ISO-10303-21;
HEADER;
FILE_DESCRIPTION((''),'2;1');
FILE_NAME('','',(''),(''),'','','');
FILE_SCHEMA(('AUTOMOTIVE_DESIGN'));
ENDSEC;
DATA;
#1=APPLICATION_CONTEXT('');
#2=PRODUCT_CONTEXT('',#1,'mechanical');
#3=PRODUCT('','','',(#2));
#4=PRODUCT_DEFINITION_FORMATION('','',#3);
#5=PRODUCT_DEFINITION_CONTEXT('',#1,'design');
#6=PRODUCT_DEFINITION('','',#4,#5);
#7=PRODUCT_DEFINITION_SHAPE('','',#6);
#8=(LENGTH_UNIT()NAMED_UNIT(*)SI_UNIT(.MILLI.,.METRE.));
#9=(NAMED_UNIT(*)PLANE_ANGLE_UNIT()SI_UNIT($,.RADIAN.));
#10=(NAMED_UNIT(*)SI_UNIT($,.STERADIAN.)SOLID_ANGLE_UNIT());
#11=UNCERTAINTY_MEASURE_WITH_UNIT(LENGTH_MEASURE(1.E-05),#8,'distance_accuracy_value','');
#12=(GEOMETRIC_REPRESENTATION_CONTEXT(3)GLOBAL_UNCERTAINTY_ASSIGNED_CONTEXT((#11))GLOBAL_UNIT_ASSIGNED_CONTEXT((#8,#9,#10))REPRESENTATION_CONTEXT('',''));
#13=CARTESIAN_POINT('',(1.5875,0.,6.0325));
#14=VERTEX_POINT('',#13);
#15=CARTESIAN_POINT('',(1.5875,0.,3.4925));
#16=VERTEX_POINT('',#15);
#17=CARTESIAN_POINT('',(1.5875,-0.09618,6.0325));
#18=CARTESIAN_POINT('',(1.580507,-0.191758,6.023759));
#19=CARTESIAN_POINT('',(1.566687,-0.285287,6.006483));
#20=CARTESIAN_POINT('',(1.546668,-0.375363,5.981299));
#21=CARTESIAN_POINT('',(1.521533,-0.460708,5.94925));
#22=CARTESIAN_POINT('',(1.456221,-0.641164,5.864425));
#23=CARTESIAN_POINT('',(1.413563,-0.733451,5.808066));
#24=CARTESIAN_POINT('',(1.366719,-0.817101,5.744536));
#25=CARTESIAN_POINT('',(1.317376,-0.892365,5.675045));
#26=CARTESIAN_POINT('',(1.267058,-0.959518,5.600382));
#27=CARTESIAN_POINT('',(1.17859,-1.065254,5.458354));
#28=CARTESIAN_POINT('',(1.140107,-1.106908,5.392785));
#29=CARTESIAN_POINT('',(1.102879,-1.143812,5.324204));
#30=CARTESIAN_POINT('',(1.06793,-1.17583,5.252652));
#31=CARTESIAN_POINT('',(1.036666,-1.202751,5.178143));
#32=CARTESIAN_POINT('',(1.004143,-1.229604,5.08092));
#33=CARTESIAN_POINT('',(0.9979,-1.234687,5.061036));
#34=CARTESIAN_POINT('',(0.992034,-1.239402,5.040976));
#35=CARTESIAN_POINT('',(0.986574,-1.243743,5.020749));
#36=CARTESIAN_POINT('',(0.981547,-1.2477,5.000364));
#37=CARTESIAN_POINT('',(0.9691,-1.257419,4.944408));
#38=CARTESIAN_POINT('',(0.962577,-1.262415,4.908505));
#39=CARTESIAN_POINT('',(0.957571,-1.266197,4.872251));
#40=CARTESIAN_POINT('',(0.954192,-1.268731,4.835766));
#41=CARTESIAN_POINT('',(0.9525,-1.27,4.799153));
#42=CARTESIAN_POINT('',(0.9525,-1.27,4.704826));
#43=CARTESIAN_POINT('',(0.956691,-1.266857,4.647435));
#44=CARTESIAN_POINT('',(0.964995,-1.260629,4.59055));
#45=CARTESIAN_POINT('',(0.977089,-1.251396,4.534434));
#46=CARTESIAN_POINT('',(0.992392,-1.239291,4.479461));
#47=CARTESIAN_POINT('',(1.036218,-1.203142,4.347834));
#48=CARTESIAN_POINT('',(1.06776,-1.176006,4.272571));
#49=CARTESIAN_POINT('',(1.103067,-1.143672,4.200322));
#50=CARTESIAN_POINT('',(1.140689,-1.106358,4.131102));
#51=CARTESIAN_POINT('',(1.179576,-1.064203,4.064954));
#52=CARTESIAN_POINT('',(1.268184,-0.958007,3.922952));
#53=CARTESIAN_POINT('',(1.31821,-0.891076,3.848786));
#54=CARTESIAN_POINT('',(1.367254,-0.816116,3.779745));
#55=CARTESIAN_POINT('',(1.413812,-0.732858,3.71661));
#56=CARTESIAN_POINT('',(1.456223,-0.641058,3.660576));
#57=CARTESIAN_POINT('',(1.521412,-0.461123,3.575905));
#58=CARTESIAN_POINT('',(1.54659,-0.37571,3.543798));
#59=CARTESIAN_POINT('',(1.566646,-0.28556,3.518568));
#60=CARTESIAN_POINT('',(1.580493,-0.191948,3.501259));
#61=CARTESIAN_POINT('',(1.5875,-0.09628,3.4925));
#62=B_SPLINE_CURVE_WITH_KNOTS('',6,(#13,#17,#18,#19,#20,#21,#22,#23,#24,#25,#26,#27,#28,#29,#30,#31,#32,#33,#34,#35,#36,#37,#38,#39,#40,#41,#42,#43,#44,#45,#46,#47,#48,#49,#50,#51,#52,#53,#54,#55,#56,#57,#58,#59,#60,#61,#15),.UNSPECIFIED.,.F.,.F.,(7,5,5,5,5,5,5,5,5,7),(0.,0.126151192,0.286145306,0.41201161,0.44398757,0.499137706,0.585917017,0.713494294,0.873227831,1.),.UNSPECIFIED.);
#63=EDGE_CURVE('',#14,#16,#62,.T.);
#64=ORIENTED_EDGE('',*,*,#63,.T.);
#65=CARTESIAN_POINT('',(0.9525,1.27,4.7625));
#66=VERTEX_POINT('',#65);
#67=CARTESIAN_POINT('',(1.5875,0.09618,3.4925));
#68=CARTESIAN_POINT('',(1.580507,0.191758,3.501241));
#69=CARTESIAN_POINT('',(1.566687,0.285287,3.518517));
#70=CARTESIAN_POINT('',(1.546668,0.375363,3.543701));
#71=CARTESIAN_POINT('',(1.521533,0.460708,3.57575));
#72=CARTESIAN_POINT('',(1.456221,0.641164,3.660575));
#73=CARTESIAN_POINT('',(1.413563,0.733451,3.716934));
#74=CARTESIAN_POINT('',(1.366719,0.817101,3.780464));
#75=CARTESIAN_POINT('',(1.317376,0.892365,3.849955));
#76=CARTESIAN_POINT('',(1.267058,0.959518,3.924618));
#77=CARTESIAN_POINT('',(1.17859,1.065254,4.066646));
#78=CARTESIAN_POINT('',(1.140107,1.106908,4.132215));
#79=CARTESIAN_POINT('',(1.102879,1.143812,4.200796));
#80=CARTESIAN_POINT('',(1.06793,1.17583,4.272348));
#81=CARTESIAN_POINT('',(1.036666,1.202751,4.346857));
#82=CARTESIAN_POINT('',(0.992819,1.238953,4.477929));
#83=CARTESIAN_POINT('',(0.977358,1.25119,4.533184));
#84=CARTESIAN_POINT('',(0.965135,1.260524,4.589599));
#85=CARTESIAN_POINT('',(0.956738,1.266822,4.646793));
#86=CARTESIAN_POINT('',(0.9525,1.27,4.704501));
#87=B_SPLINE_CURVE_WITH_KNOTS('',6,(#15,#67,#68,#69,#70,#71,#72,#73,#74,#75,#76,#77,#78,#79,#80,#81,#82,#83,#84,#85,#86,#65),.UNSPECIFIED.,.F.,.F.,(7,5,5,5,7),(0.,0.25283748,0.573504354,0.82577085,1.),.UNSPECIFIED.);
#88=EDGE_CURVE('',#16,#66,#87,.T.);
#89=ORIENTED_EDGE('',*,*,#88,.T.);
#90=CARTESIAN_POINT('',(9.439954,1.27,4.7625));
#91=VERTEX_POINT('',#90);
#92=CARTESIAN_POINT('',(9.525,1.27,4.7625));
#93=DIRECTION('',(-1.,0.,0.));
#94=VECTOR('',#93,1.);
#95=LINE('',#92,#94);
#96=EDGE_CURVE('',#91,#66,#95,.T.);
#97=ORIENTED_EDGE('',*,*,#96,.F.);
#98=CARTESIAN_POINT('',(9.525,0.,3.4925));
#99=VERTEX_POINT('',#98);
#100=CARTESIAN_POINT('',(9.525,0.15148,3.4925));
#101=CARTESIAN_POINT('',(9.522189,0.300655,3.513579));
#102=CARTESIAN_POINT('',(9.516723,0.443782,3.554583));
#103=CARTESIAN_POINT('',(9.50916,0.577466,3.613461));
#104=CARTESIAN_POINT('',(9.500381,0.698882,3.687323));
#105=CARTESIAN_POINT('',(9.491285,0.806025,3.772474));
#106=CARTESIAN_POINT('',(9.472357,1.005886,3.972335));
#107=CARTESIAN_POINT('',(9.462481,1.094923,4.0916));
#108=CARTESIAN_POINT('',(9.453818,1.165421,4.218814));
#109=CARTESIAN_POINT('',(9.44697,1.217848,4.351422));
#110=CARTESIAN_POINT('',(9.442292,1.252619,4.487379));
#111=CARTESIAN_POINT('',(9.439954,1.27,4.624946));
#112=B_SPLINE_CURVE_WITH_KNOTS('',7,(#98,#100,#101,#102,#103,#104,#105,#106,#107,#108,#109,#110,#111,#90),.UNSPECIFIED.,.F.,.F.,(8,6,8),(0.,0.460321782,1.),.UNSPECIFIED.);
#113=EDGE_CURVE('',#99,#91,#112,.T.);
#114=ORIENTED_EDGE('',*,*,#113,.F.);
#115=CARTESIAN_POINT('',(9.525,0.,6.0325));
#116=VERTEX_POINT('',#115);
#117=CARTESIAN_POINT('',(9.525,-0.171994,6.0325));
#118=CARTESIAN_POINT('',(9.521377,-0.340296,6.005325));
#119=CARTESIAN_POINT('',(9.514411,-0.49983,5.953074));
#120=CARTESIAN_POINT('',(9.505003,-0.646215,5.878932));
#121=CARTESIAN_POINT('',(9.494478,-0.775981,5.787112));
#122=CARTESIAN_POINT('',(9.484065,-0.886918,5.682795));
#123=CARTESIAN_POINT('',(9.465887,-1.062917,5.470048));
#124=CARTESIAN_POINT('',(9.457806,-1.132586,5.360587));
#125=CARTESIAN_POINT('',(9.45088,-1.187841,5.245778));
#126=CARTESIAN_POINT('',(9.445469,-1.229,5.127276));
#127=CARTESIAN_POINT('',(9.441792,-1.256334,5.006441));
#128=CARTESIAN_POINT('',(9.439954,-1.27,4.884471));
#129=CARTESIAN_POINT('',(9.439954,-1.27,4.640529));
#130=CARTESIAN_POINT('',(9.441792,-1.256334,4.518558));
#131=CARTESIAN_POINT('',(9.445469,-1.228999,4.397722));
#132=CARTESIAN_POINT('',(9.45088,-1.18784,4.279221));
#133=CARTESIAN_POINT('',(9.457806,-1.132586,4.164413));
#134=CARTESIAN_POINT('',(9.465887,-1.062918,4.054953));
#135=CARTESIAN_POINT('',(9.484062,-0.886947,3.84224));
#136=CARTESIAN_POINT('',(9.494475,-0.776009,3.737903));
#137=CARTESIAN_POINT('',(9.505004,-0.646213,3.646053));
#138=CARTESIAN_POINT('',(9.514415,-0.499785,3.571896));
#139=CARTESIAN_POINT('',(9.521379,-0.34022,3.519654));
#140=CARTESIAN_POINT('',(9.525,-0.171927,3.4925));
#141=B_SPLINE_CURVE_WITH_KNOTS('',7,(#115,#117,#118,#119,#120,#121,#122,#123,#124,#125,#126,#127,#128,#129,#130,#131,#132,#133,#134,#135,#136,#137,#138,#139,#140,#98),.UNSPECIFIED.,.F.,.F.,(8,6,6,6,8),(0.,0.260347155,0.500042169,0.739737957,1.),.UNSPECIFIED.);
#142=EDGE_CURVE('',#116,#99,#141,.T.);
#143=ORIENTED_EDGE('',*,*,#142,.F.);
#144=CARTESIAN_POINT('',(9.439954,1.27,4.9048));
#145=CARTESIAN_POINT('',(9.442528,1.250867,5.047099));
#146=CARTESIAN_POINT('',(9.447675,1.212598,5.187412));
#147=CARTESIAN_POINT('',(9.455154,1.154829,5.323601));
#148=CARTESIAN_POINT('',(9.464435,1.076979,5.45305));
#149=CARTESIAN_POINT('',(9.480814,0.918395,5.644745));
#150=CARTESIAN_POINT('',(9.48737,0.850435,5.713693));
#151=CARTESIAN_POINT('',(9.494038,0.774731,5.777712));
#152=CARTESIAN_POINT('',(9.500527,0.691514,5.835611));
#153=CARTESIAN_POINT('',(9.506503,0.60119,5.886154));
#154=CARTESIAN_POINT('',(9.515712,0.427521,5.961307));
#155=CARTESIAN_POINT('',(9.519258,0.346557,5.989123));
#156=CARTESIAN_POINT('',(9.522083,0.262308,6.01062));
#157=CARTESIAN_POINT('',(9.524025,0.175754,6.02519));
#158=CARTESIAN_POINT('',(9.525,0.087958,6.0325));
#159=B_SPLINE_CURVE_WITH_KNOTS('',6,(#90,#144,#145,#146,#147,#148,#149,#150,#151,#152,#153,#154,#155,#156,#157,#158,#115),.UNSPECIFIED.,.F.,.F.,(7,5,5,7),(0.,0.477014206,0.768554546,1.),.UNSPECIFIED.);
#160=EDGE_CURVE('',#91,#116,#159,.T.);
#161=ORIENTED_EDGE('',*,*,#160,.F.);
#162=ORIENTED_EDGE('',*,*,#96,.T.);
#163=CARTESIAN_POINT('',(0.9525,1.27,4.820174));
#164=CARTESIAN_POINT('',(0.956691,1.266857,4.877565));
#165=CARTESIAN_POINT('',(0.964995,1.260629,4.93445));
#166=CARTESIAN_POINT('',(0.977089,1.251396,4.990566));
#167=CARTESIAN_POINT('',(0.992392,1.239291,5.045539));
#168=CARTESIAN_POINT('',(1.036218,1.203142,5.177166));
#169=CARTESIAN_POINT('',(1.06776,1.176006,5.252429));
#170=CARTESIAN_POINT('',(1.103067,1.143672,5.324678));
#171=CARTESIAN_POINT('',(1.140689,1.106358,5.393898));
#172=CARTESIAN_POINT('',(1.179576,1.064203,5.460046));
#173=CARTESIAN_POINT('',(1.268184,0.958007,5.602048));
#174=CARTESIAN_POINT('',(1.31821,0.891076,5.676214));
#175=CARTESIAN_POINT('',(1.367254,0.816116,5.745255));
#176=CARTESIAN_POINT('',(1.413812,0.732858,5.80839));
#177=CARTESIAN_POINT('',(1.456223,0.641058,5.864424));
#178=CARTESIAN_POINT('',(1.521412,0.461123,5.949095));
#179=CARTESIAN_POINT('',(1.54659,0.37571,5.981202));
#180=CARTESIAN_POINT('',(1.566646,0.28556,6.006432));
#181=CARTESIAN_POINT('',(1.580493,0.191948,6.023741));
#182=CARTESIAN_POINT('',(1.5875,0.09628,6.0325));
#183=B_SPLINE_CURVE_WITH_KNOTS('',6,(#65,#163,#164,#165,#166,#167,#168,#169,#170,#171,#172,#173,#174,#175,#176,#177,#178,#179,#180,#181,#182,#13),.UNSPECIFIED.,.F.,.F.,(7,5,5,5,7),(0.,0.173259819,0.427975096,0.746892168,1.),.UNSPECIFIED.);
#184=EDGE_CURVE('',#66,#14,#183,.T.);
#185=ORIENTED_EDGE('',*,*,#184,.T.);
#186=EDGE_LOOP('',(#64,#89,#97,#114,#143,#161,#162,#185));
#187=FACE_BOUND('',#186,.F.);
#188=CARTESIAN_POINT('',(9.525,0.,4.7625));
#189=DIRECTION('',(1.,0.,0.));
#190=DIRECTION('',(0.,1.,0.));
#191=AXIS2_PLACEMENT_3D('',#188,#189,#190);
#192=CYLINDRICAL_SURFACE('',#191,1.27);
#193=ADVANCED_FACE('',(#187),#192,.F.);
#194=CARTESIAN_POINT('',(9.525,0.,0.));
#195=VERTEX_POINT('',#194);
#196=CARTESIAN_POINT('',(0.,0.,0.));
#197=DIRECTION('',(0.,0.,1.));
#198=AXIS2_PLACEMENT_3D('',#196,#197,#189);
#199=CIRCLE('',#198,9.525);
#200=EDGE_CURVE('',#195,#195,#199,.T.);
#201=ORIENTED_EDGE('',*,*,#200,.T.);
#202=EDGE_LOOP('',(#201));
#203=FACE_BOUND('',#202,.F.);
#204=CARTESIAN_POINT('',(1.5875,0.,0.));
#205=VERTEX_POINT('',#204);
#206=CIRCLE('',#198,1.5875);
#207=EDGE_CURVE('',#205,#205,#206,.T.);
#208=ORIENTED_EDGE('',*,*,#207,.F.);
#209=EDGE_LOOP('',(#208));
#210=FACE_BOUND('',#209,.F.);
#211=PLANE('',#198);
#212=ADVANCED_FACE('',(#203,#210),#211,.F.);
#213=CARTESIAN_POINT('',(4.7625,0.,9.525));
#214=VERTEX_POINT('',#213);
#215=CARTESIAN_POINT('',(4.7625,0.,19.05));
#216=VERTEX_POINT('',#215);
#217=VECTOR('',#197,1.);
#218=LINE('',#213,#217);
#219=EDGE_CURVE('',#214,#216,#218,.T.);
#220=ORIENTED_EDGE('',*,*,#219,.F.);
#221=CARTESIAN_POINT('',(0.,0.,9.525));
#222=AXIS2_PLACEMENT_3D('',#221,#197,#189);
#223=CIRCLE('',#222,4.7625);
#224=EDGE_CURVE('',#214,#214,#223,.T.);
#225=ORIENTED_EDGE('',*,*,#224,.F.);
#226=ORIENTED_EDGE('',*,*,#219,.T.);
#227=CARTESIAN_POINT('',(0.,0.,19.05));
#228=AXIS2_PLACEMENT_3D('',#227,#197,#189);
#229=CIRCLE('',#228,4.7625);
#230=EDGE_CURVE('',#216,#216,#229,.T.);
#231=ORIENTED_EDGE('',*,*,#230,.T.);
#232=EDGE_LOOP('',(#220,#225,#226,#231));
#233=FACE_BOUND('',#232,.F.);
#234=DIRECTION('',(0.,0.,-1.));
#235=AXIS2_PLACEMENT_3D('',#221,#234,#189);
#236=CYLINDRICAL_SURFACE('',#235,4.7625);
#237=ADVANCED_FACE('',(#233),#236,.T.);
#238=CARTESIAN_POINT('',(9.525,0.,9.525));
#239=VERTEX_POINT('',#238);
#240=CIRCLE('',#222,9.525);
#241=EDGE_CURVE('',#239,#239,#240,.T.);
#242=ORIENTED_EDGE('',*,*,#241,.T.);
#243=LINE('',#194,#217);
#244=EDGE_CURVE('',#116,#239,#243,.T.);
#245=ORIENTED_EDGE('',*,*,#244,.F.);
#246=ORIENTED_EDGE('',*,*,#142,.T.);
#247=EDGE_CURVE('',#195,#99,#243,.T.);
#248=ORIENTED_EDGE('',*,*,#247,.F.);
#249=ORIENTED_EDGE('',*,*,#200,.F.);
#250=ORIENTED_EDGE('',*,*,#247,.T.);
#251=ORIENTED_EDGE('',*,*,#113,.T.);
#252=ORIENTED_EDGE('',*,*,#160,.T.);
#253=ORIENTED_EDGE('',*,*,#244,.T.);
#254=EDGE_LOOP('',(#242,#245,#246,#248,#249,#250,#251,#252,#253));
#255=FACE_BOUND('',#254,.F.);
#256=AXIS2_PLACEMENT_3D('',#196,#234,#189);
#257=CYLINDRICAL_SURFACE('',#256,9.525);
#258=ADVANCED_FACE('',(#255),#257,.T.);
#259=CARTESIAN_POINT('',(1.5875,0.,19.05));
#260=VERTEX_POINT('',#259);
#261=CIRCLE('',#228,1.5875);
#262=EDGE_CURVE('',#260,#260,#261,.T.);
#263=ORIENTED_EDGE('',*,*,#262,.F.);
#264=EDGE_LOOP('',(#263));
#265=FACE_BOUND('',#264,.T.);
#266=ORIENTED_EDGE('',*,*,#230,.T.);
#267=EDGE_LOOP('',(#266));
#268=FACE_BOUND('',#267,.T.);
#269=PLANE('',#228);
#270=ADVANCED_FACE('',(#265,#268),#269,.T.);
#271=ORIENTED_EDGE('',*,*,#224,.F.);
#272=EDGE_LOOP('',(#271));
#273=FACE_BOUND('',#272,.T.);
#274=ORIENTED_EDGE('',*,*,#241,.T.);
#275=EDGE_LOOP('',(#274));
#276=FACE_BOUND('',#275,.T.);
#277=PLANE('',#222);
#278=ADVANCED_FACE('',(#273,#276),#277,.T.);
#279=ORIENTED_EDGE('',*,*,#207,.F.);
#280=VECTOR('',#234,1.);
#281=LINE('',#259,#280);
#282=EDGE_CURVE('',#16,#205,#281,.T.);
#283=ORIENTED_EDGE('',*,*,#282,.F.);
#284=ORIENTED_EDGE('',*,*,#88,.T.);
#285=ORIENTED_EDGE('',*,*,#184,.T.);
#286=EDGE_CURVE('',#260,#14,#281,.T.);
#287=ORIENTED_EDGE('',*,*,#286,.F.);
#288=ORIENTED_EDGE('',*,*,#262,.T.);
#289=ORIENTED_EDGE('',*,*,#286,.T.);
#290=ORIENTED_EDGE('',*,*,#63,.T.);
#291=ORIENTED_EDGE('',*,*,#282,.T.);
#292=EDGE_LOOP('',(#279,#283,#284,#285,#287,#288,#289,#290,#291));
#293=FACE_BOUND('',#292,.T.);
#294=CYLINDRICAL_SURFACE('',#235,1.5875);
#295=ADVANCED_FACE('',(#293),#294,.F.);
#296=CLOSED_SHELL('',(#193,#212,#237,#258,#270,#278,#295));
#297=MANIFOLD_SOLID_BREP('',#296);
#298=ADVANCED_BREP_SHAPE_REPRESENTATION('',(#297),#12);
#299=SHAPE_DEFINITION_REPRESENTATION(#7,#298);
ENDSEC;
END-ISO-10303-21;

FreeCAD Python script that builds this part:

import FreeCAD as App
import Part
import Sketcher
Q = App.Units.Quantity

doc = App.newDocument("Part")
body = doc.addObject("PartDesign::Body", "Body")

sketch1 = body.newObject("Sketcher::SketchObject", "Sketch")
sketch1.AttachmentSupport = (doc.getObject("XY_Plane"), [""])
sketch1.MapMode = "FlatFace"
sketch1.addGeometry([
    Part.Circle(App.Vector(0, 0, 0), App.Vector(0, 0, 1), 9.5),
    Part.Circle(App.Vector(0, 0, 0), App.Vector(0, 0, 1), 1.6),
], False)
sketch1.addConstraint([
    Sketcher.Constraint("Coincident", 0, 3, -1, 1),
    Sketcher.Constraint("Coincident", 1, 3, -1, 1),
    Sketcher.Constraint("Diameter", 0, Q("0.75 in")),
    Sketcher.Constraint("Diameter", 1, Q("0.125 in")),
])
pad1 = body.newObject("PartDesign::Pad", "Pad")
pad1.Profile = sketch1
pad1.Length = Q("0.375 in")

sketch2 = body.newObject("Sketcher::SketchObject", "Sketch001")
sketch2.AttachmentSupport = (doc.getObject("XY_Plane"), [""])
sketch2.MapMode = "FlatFace"
sketch2.AttachmentOffset = App.Placement(App.Vector(0, 0, 0.375 * 25.4), App.Rotation())
sketch2.addGeometry([
    Part.Circle(App.Vector(0, 0, 0), App.Vector(0, 0, 1), 4.8),
    Part.Circle(App.Vector(0, 0, 0), App.Vector(0, 0, 1), 1.6),
], False)
sketch2.addConstraint([
    Sketcher.Constraint("Coincident", 0, 3, -1, 1),
    Sketcher.Constraint("Coincident", 1, 3, -1, 1),
    Sketcher.Constraint("Diameter", 0, Q("0.375 in")),
    Sketcher.Constraint("Diameter", 1, Q("0.125 in")),
])
pad2 = body.newObject("PartDesign::Pad", "Pad001")
pad2.Profile = sketch2
pad2.Length = Q("0.375 in")

sketch3 = body.newObject("Sketcher::SketchObject", "Sketch002")
sketch3.AttachmentSupport = (doc.getObject("YZ_Plane"), [""])
sketch3.MapMode = "FlatFace"
sketch3.AttachmentOffset = App.Placement(App.Vector(0, 0, 0.375 * 25.4), App.Rotation())
sketch3.addGeometry(Part.Circle(App.Vector(0, 4.8, 0), App.Vector(0, 0, 1), 1.3), False)
sketch3.addConstraint([
    Sketcher.Constraint("PointOnObject", 0, 3, -2),
    Sketcher.Constraint("Diameter", 0, Q("0.1 in")),
    Sketcher.Constraint("DistanceY", -1, 1, 0, 3, Q("0.1875 in")),
])
pocket1 = body.newObject("PartDesign::Pocket", "Pocket")
pocket1.Profile = sketch3
pocket1.Length = Q("0.375 in")

doc.recompute()
